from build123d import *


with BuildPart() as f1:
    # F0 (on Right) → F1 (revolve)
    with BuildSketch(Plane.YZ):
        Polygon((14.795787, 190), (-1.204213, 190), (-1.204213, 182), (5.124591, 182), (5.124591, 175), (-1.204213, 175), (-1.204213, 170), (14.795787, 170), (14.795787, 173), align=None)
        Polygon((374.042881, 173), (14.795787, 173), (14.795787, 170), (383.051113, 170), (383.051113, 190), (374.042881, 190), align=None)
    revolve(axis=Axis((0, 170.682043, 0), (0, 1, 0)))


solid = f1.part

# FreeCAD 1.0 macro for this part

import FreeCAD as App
import Part
import Sketcher

V = App.Vector
Q = App.Units.Quantity


def add_polygon(sketch, points):
    """Adds a closed chain of lines whose ends are joined by coincident constraints."""
    first, n = sketch.GeometryCount, len(points)
    for a, b in zip(points, points[1:] + points[:1]):
        sketch.addGeometry(Part.LineSegment(App.Vector(*a, 0), App.Vector(*b, 0)), False)
    for i in range(n):
        sketch.addConstraint(Sketcher.Constraint("Coincident", first + i, 2, first + (i + 1) % n, 1))

doc = App.newDocument("Part")
body = doc.addObject("PartDesign::Body", "Body")

# Sketch on YZ plane
sketch1 = body.newObject("Sketcher::SketchObject", "Sketch")
sketch1.AttachmentSupport = (doc.getObject("YZ_Plane"), [""])
sketch1.MapMode = "FlatFace"
add_polygon(sketch1, [(14.795787, 190), (-1.204213, 190), (-1.204213, 182), (5.124591, 182), (5.124591, 175), (-1.204213, 175), (-1.204213, 170), (383.051113, 170), (383.051113, 190), (374.042881, 190), (374.042881, 173), (14.795787, 173)])  # lines 0-11
sketch1.addConstraint([
    Sketcher.Constraint("Horizontal", 0),
    Sketcher.Constraint("Vertical", 1),
    Sketcher.Constraint("Horizontal", 2),
    Sketcher.Constraint("Vertical", 3),
    Sketcher.Constraint("Horizontal", 4),
    Sketcher.Constraint("Vertical", 5),
    Sketcher.Constraint("Horizontal", 6),
    Sketcher.Constraint("Vertical", 7),
    Sketcher.Constraint("Horizontal", 8),
    Sketcher.Constraint("Vertical", 9),
    Sketcher.Constraint("Horizontal", 10),
    Sketcher.Constraint("Vertical", 11),
    Sketcher.Constraint("Horizontal", 0, 2, 7, 2),
    Sketcher.Constraint("Vertical", 1, 2, 4, 2),
    Sketcher.Constraint("DistanceX", 0, 2, 0, 1, Q("16 mm")),
    Sketcher.Constraint("DistanceY", 1, 2, 1, 1, Q("8 mm")),
    Sketcher.Constraint("DistanceY", 3, 2, 3, 1, Q("7 mm")),
    Sketcher.Constraint("DistanceY", 5, 2, 5, 1, Q("5 mm")),
    Sketcher.Constraint("DistanceY", 9, 2, 9, 1, Q("17 mm")),
    Sketcher.Constraint("DistanceY", -1, 1, 0, 2, Q("190 mm")),
    Sketcher.Constraint("DistanceX", 8, 2, 8, 1, Q("9.008232 mm")),
    Sketcher.Constraint("DistanceX", 2, 1, 2, 2, Q("6.328804 mm")),
    Sketcher.Constraint("DistanceX", 6, 1, 6, 2, Q("384.255326 mm")),
    Sketcher.Constraint("DistanceX", -1, 1, 2, 2, Q("5.124591 mm")),
])
revolution = body.newObject("PartDesign::Revolution", "Revolution")
revolution.Profile = sketch1
revolution.ReferenceAxis = (sketch1, ["H_Axis"])
revolution.Angle = 360

doc.recompute()
